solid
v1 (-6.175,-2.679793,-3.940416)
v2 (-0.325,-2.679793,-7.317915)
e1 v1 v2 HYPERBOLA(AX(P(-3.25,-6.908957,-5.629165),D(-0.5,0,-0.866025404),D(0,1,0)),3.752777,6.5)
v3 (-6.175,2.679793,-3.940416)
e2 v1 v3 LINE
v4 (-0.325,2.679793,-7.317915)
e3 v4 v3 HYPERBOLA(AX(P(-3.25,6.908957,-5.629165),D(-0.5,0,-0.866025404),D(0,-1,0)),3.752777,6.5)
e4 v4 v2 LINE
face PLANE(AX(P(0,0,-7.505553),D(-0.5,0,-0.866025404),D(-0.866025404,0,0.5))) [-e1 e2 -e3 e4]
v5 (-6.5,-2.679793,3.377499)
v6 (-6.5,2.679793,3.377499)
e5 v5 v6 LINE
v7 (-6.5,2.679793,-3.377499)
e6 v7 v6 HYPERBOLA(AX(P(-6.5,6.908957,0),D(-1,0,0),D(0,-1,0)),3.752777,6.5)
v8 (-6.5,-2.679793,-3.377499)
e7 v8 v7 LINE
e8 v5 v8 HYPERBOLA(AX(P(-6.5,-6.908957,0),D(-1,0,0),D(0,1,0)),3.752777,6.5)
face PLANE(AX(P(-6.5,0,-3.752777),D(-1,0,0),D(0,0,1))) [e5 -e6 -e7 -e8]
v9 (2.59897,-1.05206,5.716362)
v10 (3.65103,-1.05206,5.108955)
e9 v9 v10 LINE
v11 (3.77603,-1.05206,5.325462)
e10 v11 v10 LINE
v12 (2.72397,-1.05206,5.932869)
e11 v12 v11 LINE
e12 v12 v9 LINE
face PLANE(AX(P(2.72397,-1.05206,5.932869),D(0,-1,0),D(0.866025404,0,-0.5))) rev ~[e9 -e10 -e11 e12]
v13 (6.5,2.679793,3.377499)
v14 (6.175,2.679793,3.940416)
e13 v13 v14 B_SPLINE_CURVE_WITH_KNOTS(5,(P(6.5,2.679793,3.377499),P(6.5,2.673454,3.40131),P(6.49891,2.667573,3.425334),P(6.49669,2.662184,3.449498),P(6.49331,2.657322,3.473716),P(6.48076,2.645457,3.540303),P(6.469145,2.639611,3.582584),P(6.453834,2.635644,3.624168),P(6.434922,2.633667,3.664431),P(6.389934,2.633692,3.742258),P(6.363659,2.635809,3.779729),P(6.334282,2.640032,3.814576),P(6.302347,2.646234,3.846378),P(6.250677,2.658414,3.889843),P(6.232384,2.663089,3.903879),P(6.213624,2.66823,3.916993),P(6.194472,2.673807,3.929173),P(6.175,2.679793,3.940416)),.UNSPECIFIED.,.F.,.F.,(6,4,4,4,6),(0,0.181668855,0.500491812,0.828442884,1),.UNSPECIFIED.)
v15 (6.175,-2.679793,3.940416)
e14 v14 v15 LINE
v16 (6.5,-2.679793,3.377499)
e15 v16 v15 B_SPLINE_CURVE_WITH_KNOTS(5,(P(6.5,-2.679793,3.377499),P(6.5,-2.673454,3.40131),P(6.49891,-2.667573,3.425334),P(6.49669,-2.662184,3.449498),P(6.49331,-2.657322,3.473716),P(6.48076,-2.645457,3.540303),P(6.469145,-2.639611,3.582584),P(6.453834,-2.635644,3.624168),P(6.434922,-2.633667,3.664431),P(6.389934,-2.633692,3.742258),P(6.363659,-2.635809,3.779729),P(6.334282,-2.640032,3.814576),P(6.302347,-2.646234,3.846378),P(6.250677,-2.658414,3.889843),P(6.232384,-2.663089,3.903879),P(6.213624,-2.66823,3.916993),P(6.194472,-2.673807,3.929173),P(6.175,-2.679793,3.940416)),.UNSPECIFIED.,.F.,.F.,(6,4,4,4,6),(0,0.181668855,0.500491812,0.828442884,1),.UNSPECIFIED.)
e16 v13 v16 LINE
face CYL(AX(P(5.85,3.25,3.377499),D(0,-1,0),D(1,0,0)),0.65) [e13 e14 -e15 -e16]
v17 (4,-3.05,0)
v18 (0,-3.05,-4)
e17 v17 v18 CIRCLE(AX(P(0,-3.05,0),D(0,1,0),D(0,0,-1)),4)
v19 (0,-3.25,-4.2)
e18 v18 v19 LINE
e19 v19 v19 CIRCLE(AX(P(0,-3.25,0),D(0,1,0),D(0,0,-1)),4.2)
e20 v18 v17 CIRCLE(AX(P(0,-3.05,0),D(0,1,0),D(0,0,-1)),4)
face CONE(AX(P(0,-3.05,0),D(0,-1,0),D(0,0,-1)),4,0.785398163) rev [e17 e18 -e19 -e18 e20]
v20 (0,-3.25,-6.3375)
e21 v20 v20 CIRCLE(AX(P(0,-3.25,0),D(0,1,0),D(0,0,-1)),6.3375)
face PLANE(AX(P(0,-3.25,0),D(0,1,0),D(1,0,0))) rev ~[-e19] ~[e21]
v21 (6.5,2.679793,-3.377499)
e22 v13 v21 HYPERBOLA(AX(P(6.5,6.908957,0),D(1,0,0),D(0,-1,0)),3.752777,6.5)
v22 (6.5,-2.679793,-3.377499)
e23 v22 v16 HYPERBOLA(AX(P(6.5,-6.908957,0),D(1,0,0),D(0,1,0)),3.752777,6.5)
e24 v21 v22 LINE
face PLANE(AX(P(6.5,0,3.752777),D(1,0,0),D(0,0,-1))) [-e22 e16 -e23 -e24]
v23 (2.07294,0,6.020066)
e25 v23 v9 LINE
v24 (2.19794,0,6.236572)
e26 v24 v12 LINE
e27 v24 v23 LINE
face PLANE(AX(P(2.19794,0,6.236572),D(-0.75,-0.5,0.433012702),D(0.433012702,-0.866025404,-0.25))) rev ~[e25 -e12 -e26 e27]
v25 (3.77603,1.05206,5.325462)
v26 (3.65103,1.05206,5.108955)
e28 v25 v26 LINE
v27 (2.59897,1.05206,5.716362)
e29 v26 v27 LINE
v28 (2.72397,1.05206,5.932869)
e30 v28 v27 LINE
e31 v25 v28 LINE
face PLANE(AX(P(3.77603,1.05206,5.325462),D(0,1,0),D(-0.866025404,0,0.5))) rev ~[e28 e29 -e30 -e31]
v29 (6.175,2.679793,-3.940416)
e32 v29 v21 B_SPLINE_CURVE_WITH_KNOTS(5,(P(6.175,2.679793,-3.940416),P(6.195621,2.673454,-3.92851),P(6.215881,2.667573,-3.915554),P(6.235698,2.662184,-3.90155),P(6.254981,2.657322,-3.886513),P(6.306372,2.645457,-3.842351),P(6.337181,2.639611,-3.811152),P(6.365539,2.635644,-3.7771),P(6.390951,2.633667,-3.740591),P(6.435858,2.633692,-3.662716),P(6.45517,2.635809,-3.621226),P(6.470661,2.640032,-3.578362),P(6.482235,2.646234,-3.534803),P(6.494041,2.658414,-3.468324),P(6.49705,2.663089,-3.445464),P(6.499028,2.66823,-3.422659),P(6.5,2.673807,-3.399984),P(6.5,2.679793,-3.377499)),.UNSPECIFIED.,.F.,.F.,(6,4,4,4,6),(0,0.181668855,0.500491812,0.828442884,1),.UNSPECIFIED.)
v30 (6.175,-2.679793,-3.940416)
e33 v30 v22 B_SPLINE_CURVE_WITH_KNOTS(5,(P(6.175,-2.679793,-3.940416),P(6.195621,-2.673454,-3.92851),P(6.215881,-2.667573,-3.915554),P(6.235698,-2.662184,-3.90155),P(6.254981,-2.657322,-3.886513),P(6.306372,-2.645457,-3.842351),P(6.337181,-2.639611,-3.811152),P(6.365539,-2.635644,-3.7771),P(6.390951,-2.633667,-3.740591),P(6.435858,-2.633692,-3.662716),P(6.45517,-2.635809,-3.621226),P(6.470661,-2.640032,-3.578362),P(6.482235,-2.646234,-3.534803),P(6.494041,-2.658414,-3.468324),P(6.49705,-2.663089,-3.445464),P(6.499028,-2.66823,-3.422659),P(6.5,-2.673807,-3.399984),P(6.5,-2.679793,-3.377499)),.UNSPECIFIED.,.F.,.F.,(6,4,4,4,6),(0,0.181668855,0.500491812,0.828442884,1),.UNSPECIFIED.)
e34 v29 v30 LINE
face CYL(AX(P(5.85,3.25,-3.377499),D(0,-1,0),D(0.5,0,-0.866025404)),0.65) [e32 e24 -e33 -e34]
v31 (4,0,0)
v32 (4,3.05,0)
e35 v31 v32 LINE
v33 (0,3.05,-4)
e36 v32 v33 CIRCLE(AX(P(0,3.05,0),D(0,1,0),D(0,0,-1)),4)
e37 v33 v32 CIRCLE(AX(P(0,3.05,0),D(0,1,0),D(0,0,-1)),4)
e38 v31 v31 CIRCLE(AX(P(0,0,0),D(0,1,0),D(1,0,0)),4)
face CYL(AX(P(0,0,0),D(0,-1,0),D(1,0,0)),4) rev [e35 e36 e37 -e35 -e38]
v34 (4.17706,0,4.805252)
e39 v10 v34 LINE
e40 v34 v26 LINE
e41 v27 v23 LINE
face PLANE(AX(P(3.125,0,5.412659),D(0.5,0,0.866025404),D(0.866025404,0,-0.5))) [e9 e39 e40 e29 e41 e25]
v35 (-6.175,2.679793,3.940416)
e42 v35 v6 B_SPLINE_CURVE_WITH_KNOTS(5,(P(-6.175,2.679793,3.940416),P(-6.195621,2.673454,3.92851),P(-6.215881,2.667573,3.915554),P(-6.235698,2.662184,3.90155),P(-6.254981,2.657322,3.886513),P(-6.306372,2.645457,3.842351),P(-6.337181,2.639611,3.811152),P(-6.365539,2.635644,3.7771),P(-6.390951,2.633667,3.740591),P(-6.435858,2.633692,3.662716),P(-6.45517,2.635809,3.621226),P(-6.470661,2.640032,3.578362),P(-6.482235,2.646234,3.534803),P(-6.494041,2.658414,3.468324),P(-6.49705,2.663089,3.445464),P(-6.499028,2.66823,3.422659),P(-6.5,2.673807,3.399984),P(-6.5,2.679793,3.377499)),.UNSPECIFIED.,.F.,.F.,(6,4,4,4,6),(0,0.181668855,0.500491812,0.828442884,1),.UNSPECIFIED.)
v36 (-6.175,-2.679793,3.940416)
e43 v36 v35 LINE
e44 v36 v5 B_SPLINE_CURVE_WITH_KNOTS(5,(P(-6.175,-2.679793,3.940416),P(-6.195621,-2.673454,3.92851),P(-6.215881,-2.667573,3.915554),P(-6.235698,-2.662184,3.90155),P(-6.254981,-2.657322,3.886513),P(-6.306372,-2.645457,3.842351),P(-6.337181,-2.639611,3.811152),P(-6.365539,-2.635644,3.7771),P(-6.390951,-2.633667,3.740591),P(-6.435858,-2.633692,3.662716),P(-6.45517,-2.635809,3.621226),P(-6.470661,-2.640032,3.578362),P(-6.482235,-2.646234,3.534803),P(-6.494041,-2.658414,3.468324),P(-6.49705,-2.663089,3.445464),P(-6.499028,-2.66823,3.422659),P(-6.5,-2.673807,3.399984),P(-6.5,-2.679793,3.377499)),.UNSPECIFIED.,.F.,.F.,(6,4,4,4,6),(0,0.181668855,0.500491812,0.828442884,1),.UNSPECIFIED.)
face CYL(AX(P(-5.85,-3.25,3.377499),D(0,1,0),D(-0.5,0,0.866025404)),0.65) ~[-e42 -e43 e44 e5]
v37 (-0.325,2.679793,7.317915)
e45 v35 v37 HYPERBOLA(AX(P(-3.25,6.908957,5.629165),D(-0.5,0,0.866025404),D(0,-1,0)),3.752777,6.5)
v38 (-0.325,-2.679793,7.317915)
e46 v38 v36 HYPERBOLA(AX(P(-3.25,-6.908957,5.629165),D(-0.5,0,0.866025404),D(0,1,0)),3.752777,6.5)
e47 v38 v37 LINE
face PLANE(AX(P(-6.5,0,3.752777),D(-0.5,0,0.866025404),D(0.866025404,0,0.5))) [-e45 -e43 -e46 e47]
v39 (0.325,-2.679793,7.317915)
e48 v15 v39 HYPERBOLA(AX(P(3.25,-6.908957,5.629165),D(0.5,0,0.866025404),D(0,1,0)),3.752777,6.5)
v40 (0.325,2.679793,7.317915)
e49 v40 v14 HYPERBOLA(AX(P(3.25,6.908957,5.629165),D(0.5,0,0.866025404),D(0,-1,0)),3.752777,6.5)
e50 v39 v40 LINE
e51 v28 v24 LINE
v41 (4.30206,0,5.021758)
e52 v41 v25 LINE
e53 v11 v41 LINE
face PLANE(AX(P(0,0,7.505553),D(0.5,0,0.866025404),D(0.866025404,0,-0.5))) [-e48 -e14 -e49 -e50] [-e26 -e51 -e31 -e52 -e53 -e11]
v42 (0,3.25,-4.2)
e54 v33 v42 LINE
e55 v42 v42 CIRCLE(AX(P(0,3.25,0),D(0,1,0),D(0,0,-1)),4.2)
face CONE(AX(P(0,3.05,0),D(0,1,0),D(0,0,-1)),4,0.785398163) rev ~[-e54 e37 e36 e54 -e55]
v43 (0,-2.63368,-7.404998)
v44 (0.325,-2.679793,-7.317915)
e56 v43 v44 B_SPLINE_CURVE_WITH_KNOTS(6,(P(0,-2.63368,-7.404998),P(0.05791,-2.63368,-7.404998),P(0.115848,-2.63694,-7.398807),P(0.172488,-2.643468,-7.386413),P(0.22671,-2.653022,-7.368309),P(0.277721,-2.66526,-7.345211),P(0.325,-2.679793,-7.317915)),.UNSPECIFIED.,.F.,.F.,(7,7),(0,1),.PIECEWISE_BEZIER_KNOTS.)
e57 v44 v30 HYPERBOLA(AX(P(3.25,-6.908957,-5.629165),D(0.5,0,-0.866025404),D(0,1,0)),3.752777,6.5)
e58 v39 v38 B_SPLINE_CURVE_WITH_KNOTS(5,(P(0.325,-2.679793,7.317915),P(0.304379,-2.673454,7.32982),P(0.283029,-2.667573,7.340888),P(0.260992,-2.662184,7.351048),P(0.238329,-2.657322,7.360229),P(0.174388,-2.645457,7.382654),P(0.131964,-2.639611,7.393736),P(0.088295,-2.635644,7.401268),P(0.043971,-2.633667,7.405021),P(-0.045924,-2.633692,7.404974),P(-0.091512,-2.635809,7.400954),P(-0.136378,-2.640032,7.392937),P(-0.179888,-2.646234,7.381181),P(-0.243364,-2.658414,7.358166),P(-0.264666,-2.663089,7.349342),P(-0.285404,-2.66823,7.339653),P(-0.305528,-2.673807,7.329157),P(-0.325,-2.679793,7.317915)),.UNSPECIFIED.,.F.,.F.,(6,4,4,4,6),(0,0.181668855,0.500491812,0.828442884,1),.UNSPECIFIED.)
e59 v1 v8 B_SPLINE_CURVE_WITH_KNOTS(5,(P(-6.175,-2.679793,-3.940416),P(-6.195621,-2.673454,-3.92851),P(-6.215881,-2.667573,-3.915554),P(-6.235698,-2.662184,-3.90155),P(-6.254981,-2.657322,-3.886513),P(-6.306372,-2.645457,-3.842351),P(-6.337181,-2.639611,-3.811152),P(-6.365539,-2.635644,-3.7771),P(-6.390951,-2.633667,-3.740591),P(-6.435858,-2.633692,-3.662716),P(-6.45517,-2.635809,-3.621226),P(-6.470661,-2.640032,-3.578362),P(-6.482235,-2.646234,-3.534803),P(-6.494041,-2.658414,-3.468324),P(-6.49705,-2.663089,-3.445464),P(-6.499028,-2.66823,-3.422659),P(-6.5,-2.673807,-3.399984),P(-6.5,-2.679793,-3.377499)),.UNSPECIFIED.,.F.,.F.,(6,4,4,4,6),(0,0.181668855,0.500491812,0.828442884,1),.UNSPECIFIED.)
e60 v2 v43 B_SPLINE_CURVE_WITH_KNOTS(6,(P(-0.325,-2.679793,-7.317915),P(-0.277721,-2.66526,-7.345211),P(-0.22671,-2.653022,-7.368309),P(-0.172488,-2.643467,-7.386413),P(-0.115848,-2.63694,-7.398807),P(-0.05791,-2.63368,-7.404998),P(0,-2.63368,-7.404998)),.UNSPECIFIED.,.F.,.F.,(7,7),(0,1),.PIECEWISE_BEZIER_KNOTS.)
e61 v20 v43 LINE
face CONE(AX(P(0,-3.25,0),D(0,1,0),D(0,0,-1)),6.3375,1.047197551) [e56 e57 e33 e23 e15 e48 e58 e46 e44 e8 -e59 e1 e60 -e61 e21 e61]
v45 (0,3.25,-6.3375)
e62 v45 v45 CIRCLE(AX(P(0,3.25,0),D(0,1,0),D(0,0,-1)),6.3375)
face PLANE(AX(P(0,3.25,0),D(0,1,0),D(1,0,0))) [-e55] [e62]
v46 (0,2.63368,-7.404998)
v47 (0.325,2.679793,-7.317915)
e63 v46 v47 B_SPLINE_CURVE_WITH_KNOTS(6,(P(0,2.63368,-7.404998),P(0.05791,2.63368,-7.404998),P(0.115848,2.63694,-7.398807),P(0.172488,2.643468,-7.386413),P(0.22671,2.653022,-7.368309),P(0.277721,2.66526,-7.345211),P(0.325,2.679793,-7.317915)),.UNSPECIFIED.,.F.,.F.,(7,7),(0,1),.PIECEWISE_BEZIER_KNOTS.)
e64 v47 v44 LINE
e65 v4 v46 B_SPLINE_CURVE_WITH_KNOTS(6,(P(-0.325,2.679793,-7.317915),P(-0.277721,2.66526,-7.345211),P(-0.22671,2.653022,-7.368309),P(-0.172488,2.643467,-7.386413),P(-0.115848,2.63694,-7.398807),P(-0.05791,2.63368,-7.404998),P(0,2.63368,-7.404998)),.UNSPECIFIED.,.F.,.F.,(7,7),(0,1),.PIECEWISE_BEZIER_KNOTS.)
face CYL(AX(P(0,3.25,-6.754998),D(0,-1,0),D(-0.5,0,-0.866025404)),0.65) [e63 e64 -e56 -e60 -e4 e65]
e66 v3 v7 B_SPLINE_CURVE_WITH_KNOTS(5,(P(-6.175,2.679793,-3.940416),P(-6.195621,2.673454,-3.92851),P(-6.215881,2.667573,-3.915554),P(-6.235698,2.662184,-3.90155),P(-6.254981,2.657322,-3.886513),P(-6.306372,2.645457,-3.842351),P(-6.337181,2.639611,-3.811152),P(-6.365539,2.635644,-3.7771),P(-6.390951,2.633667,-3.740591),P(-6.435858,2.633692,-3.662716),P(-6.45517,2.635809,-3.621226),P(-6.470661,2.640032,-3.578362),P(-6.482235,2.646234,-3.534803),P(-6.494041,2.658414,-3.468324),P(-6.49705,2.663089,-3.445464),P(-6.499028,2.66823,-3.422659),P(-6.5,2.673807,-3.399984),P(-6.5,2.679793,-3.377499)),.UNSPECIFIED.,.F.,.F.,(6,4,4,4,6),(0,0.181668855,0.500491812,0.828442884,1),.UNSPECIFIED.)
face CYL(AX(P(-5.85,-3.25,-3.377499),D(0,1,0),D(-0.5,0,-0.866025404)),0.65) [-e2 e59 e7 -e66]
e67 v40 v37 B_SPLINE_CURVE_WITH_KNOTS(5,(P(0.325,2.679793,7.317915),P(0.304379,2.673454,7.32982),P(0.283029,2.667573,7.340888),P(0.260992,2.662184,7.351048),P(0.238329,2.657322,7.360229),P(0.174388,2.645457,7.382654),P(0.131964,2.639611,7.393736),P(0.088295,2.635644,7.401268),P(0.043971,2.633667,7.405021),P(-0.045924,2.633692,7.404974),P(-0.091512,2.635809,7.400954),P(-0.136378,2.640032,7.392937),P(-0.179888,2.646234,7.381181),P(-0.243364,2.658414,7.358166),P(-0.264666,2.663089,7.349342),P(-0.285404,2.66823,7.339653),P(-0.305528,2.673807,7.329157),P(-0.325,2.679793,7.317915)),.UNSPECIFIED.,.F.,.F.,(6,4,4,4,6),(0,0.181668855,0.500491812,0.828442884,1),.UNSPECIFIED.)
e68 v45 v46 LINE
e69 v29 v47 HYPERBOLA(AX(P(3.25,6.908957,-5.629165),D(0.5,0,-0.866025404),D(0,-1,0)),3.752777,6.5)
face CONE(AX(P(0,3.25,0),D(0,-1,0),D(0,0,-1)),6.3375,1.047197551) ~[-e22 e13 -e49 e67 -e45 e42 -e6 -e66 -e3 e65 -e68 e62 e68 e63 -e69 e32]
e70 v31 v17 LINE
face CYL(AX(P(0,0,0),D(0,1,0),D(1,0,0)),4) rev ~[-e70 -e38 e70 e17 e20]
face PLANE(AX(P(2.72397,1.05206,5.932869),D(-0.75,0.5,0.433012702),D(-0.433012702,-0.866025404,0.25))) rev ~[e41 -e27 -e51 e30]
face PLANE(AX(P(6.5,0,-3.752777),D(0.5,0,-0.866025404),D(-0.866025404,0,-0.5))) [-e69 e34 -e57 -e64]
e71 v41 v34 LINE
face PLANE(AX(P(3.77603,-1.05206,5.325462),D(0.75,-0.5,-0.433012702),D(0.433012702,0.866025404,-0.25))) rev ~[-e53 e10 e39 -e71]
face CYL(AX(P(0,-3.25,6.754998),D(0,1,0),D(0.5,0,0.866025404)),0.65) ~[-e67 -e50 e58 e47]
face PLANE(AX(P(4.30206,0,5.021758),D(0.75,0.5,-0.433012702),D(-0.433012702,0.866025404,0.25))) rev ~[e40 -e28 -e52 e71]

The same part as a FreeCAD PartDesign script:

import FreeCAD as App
import Part
import Sketcher

V = App.Vector
Q = App.Units.Quantity


def edges_at(feature, points):
    """Names of the edges that pass closest to the given points."""
    edges = feature.Shape.Edges
    near = lambda p: min(range(len(edges)), key=lambda i: edges[i].distToShape(Part.Vertex(*p))[0])
    return sorted({f"Edge{near(p) + 1}" for p in points})

doc = App.newDocument("Part")
body = doc.addObject("PartDesign::Body", "Body")

sketch1 = body.newObject("Sketcher::SketchObject", "Sketch")
sketch1.AttachmentSupport = (doc.getObject("XZ_Plane"), [""])
sketch1.MapMode = "FlatFace"
sketch1.addGeometry([
    Part.LineSegment(V(0, -7.5, 0), V(-6.5, -3.8, 0)),
    Part.LineSegment(V(-6.5, -3.8, 0), V(-6.5, 3.8, 0)),
    Part.LineSegment(V(-6.5, 3.8, 0), V(0, 7.5, 0)),
    Part.LineSegment(V(0, 7.5, 0), V(6.5, 3.8, 0)),
    Part.LineSegment(V(6.5, 3.8, 0), V(6.5, -3.8, 0)),
    Part.LineSegment(V(6.5, -3.8, 0), V(0, -7.5, 0)),
    Part.Circle(V(0, 0, 0), V(0, 0, 1), 4),
], False)
sketch1.addConstraint([
    Sketcher.Constraint("Coincident", 0, 2, 1, 1),
    Sketcher.Constraint("Coincident", 1, 2, 2, 1),
    Sketcher.Constraint("Coincident", 2, 2, 3, 1),
    Sketcher.Constraint("Coincident", 3, 2, 4, 1),
    Sketcher.Constraint("Coincident", 4, 2, 5, 1),
    Sketcher.Constraint("Coincident", 5, 2, 0, 1),
    Sketcher.Constraint("Vertical", 1),
    Sketcher.Constraint("Vertical", 4),
    Sketcher.Constraint("Coincident", 6, 3, -1, 1),
    Sketcher.Constraint("Symmetric", 0, 2, 3, 2, -1, 1),
    Sketcher.Constraint("Symmetric", 2, 2, 5, 2, -1, 1),
    Sketcher.Constraint("PointOnObject", 2, 2, -2),
    Sketcher.Constraint("Parallel", 2, 5),
    Sketcher.Constraint("Horizontal", 1, 2, 3, 2),
    Sketcher.Constraint("Diameter", 6, Q("8 mm")),
    Sketcher.Constraint("Angle", 0, Q("150 deg")),
    Sketcher.Constraint("DistanceX", 1, 2, 3, 2, Q("13 mm")),
    Sketcher.Constraint("DistanceY", 1, 1, 1, 2, Q("7.505554 mm")),
])
pad1 = body.newObject("PartDesign::Pad", "Pad")
pad1.Profile = sketch1
pad1.Type = "TwoLengths"
pad1.Length = 3.25
pad1.Length2 = 3.25
pad1.Reversed = True
doc.recompute()

fillet = body.newObject("PartDesign::Fillet", "Fillet")
fillet.Base = (pad1, edges_at(pad1, [
    (6.5, 0, -3.753),
    (6.5, 0, 3.753),
    (0, 0, 7.506),
    (-6.5, 0, 3.753),
    (-6.5, 0, -3.753),
    (0, 0, -7.506),
]))
fillet.Radius = 0.65

sketch2 = body.newObject("Sketcher::SketchObject", "Sketch001")
sketch2.AttachmentSupport = (doc.getObject("YZ_Plane"), [""])
sketch2.MapMode = "FlatFace"
sketch2.addGeometry([
    Part.LineSegment(V(-2.58, -7.51, 0), V(-3.25, -6.34, 0)),
    Part.LineSegment(V(-3.25, -6.34, 0), V(-3.25, -7.51, 0)),
    Part.LineSegment(V(-3.25, -7.51, 0), V(-2.58, -7.51, 0)),
    Part.LineSegment(V(3.25, -4, 0), V(3.05, -4, 0)),
    Part.LineSegment(V(3.05, -4, 0), V(3.25, -4.2, 0)),
    Part.LineSegment(V(3.25, -4.2, 0), V(3.25, -4, 0)),
    Part.LineSegment(V(-3.05, -4, 0), V(-3.25, -4, 0)),
    Part.LineSegment(V(-3.25, -4, 0), V(-3.25, -4.2, 0)),
    Part.LineSegment(V(-3.25, -4.2, 0), V(-3.05, -4, 0)),
    Part.LineSegment(V(3.25, -6.34, 0), V(2.58, -7.51, 0)),
    Part.LineSegment(V(2.58, -7.51, 0), V(3.25, -7.51, 0)),
    Part.LineSegment(V(3.25, -7.51, 0), V(3.25, -6.34, 0)),
], False)
sketch2.addConstraint([
    Sketcher.Constraint("Coincident", 0, 2, 1, 1),
    Sketcher.Constraint("Coincident", 1, 2, 2, 1),
    Sketcher.Constraint("Coincident", 2, 2, 0, 1),
    Sketcher.Constraint("Coincident", 3, 2, 4, 1),
    Sketcher.Constraint("Coincident", 4, 2, 5, 1),
    Sketcher.Constraint("Coincident", 5, 2, 3, 1),
    Sketcher.Constraint("Coincident", 6, 2, 7, 1),
    Sketcher.Constraint("Coincident", 7, 2, 8, 1),
    Sketcher.Constraint("Coincident", 8, 2, 6, 1),
    Sketcher.Constraint("Coincident", 9, 2, 10, 1),
    Sketcher.Constraint("Coincident", 10, 2, 11, 1),
    Sketcher.Constraint("Coincident", 11, 2, 9, 1),
    Sketcher.Constraint("Vertical", 1),
    Sketcher.Constraint("Horizontal", 2),
    Sketcher.Constraint("Horizontal", 3),
    Sketcher.Constraint("Vertical", 5),
    Sketcher.Constraint("Horizontal", 6),
    Sketcher.Constraint("Vertical", 7),
    Sketcher.Constraint("Horizontal", 10),
    Sketcher.Constraint("Vertical", 11),
    Sketcher.Constraint("Symmetric", 5, 2, 6, 2, -2),
    Sketcher.Constraint("Symmetric", 2, 2, 9, 2, -2),
    Sketcher.Constraint("Symmetric", 0, 2, 11, 2, -2),
    Sketcher.Constraint("Perpendicular", 4, 8),
    Sketcher.Constraint("Horizontal", 4, 2, 7, 2),
    Sketcher.Constraint("Vertical", 1, 2, 6, 2),
    Sketcher.Constraint("Equal", 3, 6),
    Sketcher.Constraint("Angle", 0, Q("120 deg")),
    Sketcher.Constraint("DistanceX", 3, 2, 3, 1, Q("0.2 mm")),
    Sketcher.Constraint("DistanceY", 3, 2, -1, 1, Q("4 mm")),
    Sketcher.Constraint("DistanceX", 0, 2, 3, 2, Q("6.3 mm")),
    Sketcher.Constraint("DistanceY", 0, 2, -1, 1, Q("6.3375 mm")),
    Sketcher.Constraint("DistanceX", 2, 1, 2, 2, Q("0.674376 mm")),
])
groove = body.newObject("PartDesign::Groove", "Groove")
groove.Profile = sketch2
groove.ReferenceAxis = (sketch2, ["H_Axis"])
groove.Angle = 360

sketch3 = body.newObject("Sketcher::SketchObject", "Sketch002")
sketch3.Placement = App.Placement(V(3.25, 0, 5.629165), App.Rotation(V(0.866025404, 0, -0.5), V(0, 1, 0), V(0.5, 0, 0.866025404), "ZXY"))
sketch3.addGeometry([
    Part.LineSegment(V(-1.2, 0, 0), V(-0.6, -1.1, 0)),
    Part.LineSegment(V(-0.6, -1.1, 0), V(0.6, -1.1, 0)),
    Part.LineSegment(V(0.6, -1.1, 0), V(1.2, 0, 0)),
    Part.LineSegment(V(1.2, 0, 0), V(0.6, 1.1, 0)),
    Part.LineSegment(V(0.6, 1.1, 0), V(-0.6, 1.1, 0)),
    Part.LineSegment(V(-0.6, 1.1, 0), V(-1.2, 0, 0)),
], False)
sketch3.addConstraint([
    Sketcher.Constraint("Coincident", 0, 2, 1, 1),
    Sketcher.Constraint("Coincident", 1, 2, 2, 1),
    Sketcher.Constraint("Coincident", 2, 2, 3, 1),
    Sketcher.Constraint("Coincident", 3, 2, 4, 1),
    Sketcher.Constraint("Coincident", 4, 2, 5, 1),
    Sketcher.Constraint("Coincident", 5, 2, 0, 1),
    Sketcher.Constraint("Horizontal", 1),
    Sketcher.Constraint("Horizontal", 4),
    Sketcher.Constraint("Symmetric", 0, 2, 3, 2, -1, 1),
    Sketcher.Constraint("Symmetric", 2, 2, 5, 2, -1, 1),
    Sketcher.Constraint("PointOnObject", 2, 2, -1),
    Sketcher.Constraint("Parallel", 2, 5),
    Sketcher.Constraint("Vertical", 1, 2, 3, 2),
    Sketcher.Constraint("Angle", 0, Q("-60 deg")),
    Sketcher.Constraint("DistanceX", 1, 1, 1, 2, Q("1.214814 mm")),
    Sketcher.Constraint("DistanceY", 0, 2, -1, 1, Q("1.05206 mm")),
])
pocket1 = body.newObject("PartDesign::Pocket", "Pocket")
pocket1.Profile = sketch3
pocket1.Length = 0.25

doc.recompute()
